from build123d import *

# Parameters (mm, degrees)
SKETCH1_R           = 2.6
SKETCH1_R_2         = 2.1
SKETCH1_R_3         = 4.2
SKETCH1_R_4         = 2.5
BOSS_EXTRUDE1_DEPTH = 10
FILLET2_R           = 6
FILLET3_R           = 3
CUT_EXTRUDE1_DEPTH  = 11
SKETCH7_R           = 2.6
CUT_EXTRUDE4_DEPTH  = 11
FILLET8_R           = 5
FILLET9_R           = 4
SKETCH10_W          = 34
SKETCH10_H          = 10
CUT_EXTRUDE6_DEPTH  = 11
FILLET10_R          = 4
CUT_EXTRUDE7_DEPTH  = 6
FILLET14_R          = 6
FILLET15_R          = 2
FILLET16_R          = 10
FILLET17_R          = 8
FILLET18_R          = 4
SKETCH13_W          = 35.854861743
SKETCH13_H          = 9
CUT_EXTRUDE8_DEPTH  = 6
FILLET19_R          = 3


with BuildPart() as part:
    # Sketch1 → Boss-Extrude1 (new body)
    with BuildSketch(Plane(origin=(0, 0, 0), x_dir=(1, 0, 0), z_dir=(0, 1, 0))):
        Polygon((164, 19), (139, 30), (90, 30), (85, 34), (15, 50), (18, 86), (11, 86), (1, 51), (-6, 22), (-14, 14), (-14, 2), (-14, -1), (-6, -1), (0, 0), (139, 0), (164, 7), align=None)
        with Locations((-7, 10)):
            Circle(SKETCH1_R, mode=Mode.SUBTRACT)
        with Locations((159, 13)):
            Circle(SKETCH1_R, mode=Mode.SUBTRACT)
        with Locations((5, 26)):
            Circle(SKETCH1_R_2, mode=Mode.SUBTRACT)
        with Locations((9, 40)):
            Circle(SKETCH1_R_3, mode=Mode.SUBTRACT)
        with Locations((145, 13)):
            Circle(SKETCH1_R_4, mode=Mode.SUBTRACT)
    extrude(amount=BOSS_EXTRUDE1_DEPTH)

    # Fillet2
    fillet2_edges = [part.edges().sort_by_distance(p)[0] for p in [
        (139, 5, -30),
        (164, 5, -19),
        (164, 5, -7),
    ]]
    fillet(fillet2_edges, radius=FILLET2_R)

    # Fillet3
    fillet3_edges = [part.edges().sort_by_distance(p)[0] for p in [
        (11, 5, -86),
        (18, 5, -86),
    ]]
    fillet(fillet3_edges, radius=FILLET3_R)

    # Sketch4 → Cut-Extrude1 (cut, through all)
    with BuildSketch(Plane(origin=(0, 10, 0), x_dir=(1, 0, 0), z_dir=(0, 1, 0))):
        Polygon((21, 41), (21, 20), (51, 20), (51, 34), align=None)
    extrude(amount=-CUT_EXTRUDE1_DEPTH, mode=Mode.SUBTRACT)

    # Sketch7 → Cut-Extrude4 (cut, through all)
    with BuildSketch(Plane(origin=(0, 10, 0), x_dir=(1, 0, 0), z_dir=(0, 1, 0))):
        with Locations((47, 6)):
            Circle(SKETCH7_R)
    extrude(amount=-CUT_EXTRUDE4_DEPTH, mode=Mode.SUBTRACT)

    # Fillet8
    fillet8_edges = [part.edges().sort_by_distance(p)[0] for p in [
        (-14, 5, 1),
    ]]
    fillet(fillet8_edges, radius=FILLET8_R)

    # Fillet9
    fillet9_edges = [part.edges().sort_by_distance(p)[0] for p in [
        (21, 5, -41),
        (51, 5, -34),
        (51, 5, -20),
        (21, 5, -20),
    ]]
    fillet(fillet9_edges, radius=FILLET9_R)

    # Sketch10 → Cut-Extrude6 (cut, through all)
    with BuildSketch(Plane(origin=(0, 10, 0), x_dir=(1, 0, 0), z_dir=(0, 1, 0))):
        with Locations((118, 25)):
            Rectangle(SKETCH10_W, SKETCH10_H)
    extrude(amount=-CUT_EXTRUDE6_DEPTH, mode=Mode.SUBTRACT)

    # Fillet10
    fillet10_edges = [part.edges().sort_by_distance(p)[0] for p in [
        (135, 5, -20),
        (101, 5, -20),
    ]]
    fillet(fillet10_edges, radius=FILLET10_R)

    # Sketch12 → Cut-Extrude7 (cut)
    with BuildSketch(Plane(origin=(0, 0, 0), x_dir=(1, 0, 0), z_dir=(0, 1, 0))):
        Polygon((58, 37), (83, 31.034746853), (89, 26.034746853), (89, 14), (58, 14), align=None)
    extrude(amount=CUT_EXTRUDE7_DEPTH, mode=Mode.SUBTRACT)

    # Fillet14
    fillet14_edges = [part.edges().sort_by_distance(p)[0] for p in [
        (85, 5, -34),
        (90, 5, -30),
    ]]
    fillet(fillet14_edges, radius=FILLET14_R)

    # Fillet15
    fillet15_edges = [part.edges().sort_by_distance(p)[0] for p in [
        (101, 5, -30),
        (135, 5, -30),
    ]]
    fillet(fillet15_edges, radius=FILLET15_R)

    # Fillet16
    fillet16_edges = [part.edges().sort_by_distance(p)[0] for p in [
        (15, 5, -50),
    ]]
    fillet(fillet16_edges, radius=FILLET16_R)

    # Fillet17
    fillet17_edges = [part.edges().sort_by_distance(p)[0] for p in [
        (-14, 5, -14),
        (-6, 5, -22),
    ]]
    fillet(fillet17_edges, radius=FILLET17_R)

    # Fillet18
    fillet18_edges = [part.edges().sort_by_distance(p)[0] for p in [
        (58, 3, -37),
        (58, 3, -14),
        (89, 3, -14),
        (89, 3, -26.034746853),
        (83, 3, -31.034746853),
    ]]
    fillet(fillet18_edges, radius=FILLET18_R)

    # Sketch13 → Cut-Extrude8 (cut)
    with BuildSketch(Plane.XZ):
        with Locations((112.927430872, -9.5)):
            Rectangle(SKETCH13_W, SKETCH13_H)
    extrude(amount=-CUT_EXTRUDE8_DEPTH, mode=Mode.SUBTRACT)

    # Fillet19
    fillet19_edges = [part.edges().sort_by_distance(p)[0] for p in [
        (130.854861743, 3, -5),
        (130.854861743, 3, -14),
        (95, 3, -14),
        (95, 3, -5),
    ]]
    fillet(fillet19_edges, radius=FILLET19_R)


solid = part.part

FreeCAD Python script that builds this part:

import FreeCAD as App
import Part
import Sketcher
from FreeCAD import Vector
Q = App.Units.Quantity


def edges_at(feature, points):
    """Names of the edges that pass closest to the given points."""
    edges = feature.Shape.Edges
    near = lambda p: min(range(len(edges)), key=lambda i: edges[i].distToShape(Part.Vertex(*p))[0])
    return sorted({f"Edge{near(p) + 1}" for p in points})


def add_polygon(sketch, points):
    """Adds a closed chain of lines whose ends are joined by coincident constraints."""
    first, n = sketch.GeometryCount, len(points)
    for a, b in zip(points, points[1:] + points[:1]):
        sketch.addGeometry(Part.LineSegment(App.Vector(*a, 0), App.Vector(*b, 0)), False)
    for i in range(n):
        sketch.addConstraint(Sketcher.Constraint("Coincident", first + i, 2, first + (i + 1) % n, 1))

doc = App.newDocument("Part")
body = doc.addObject("PartDesign::Body", "Body")

# Sketch on XZ plane
sketch1 = doc.addObject("Sketcher::SketchObject", "Sketch")
body.addObject(sketch1)
sketch1.AttachmentSupport = (doc.XZ_Plane, [""])
sketch1.MapMode = "FlatFace"
add_polygon(sketch1, [(164, -19), (139, -30), (90, -30), (85, -34), (15, -50), (18, -86), (11, -86), (1, -51), (-6, -22), (-14, -14), (-14, 1), (-6, 1), (0, 0), (139, 0), (164, -7)])  # lines 0-14
sketch1.addGeometry(Part.Circle(Vector(-7, -10, 0), Vector(0, 0, 1), 2.6), False)  # 15
sketch1.addGeometry(Part.Circle(Vector(145, -13, 0), Vector(0, 0, 1), 2.5), False)  # 16
sketch1.addGeometry(Part.Circle(Vector(159, -13, 0), Vector(0, 0, 1), 2.6), False)  # 17
sketch1.addGeometry(Part.Circle(Vector(5, -26, 0), Vector(0, 0, 1), 2.1), False)  # 18
sketch1.addGeometry(Part.Circle(Vector(9, -40, 0), Vector(0, 0, 1), 4.2), False)  # 19
sketch1.addConstraint([
    Sketcher.Constraint("Horizontal", 1),
    Sketcher.Constraint("Horizontal", 5),
    Sketcher.Constraint("Vertical", 9),
    Sketcher.Constraint("Horizontal", 10),
    Sketcher.Constraint("Horizontal", 12),
    Sketcher.Constraint("Vertical", 14),
    Sketcher.Constraint("Coincident", 11, 2, -1, 1),
    Sketcher.Constraint("Equal", 15, 17),
    Sketcher.Constraint("Horizontal", 16, 3, 17, 3),
    Sketcher.Constraint("Vertical", 7, 2, 10, 2),
    Sketcher.Constraint("Vertical", 0, 2, 12, 2),
    Sketcher.Constraint("Diameter", 16, Q("5 mm")),
    Sketcher.Constraint("Diameter", 15, Q("5.2 mm")),
    Sketcher.Constraint("Diameter", 18, Q("4.2 mm")),
    Sketcher.Constraint("Diameter", 19, Q("8.4 mm")),
    Sketcher.Constraint("DistanceX", 1, 2, 1, 1, Q("49 mm")),
    Sketcher.Constraint("DistanceX", 5, 2, 5, 1, Q("7 mm")),
    Sketcher.Constraint("DistanceX", 10, 1, 10, 2, Q("8 mm")),
    Sketcher.Constraint("DistanceX", 12, 1, 12, 2, Q("139 mm")),
    Sketcher.Constraint("DistanceY", 9, 1, 9, 2, Q("15 mm")),
    Sketcher.Constraint("DistanceY", 14, 2, 14, 1, Q("12 mm")),
    Sketcher.Constraint("Angle", 8, Q("135 deg")),
    Sketcher.Constraint("DistanceX", 15, 3, -1, 1, Q("7 mm")),
    Sketcher.Constraint("DistanceY", 15, 3, -1, 1, Q("10 mm")),
    Sketcher.Constraint("DistanceX", -1, 1, 16, 3, Q("145 mm")),
    Sketcher.Constraint("DistanceY", 16, 3, -1, 1, Q("13 mm")),
    Sketcher.Constraint("DistanceX", -1, 1, 17, 3, Q("159 mm")),
    Sketcher.Constraint("DistanceX", -1, 1, 18, 3, Q("5 mm")),
    Sketcher.Constraint("DistanceY", 18, 3, -1, 1, Q("26 mm")),
    Sketcher.Constraint("DistanceX", -1, 1, 19, 3, Q("9 mm")),
    Sketcher.Constraint("DistanceY", 19, 3, -1, 1, Q("40 mm")),
    Sketcher.Constraint("DistanceY", 0, 2, -1, 1, Q("30 mm")),
    Sketcher.Constraint("DistanceX", -1, 1, 2, 2, Q("85 mm")),
    Sketcher.Constraint("DistanceY", 2, 2, -1, 1, Q("34 mm")),
    Sketcher.Constraint("DistanceX", -1, 1, 3, 2, Q("15 mm")),
    Sketcher.Constraint("DistanceY", 3, 2, -1, 1, Q("50 mm")),
    Sketcher.Constraint("DistanceX", -1, 1, 4, 2, Q("18 mm")),
    Sketcher.Constraint("DistanceY", 4, 2, -1, 1, Q("86 mm")),
    Sketcher.Constraint("DistanceX", -1, 1, 6, 2, Q("1 mm")),
    Sketcher.Constraint("DistanceY", 6, 2, -1, 1, Q("51 mm")),
    Sketcher.Constraint("DistanceX", 7, 2, -1, 1, Q("6 mm")),
    Sketcher.Constraint("DistanceY", 7, 2, -1, 1, Q("22 mm")),
    Sketcher.Constraint("DistanceX", -1, 1, 13, 2, Q("164 mm")),
    Sketcher.Constraint("DistanceY", 13, 2, -1, 1, Q("7 mm")),
])
pad1 = doc.addObject("PartDesign::Pad", "Pad")
body.addObject(pad1)
pad1.Profile = sketch1
pad1.Length = 10
pad1.Reversed = True
doc.recompute()

fillet = doc.addObject("PartDesign::Fillet", "Fillet")
body.addObject(fillet)
fillet.Base = (pad1, edges_at(pad1, [(139, 5, -30), (164, 5, -19), (164, 5, -7)]))
fillet.Radius = 6
doc.recompute()

fillet2 = doc.addObject("PartDesign::Fillet", "Fillet001")
body.addObject(fillet2)
fillet2.Base = (fillet, edges_at(fillet, [(11, 5, -86), (18, 5, -86)]))
fillet2.Radius = 3

# Sketch on XZ plane
sketch2 = doc.addObject("Sketcher::SketchObject", "Sketch001")
body.addObject(sketch2)
sketch2.AttachmentSupport = (doc.XZ_Plane, [""])
sketch2.MapMode = "FlatFace"
sketch2.AttachmentOffset = App.Placement(Vector(0, 0, -10), App.Rotation())
add_polygon(sketch2, [(21, -41), (21, -20), (51, -20), (51, -34)])  # lines 0-3
sketch2.addConstraint([
    Sketcher.Constraint("Vertical", 0),
    Sketcher.Constraint("Horizontal", 1),
    Sketcher.Constraint("Vertical", 2),
    Sketcher.Constraint("DistanceX", 1, 1, 1, 2, Q("30 mm")),
    Sketcher.Constraint("DistanceY", 0, 1, 0, 2, Q("21 mm")),
    Sketcher.Constraint("DistanceY", 2, 2, 2, 1, Q("14 mm")),
    Sketcher.Constraint("DistanceX", -1, 1, 0, 2, Q("21 mm")),
    Sketcher.Constraint("DistanceY", 0, 2, -1, 1, Q("20 mm")),
])
pocket1 = doc.addObject("PartDesign::Pocket", "Pocket")
body.addObject(pocket1)
pocket1.Profile = sketch2
pocket1.Type = "ThroughAll"
pocket1.Reversed = True

# Sketch on XZ plane
sketch3 = doc.addObject("Sketcher::SketchObject", "Sketch002")
body.addObject(sketch3)
sketch3.AttachmentSupport = (doc.XZ_Plane, [""])
sketch3.MapMode = "FlatFace"
sketch3.AttachmentOffset = App.Placement(Vector(0, 0, -10), App.Rotation())
sketch3.addGeometry(Part.Circle(Vector(47, -6, 0), Vector(0, 0, 1), 2.6), False)
sketch3.addConstraint([
    Sketcher.Constraint("Diameter", 0, Q("5.2 mm")),
    Sketcher.Constraint("DistanceX", -1, 1, 0, 3, Q("47 mm")),
    Sketcher.Constraint("DistanceY", 0, 3, -1, 1, Q("6 mm")),
])
pocket2 = doc.addObject("PartDesign::Pocket", "Pocket001")
body.addObject(pocket2)
pocket2.Profile = sketch3
pocket2.Type = "ThroughAll"
pocket2.Reversed = True
doc.recompute()

fillet3 = doc.addObject("PartDesign::Fillet", "Fillet002")
body.addObject(fillet3)
fillet3.Base = (pocket2, edges_at(pocket2, [(-14, 5, 1)]))
fillet3.Radius = 5
doc.recompute()

fillet4 = doc.addObject("PartDesign::Fillet", "Fillet003")
body.addObject(fillet4)
fillet4.Base = (fillet3, edges_at(fillet3, [
    (21, 5, -41),
    (51, 5, -34),
    (51, 5, -20),
    (21, 5, -20),
]))
fillet4.Radius = 4

# Sketch on XZ plane
sketch4 = doc.addObject("Sketcher::SketchObject", "Sketch003")
body.addObject(sketch4)
sketch4.AttachmentSupport = (doc.XZ_Plane, [""])
sketch4.MapMode = "FlatFace"
sketch4.AttachmentOffset = App.Placement(Vector(0, 0, -10), App.Rotation())
add_polygon(sketch4, [(101, -30), (101, -20), (135, -20), (135, -30)])  # lines 0-3
sketch4.addConstraint([
    Sketcher.Constraint("Vertical", 0),
    Sketcher.Constraint("Horizontal", 1),
    Sketcher.Constraint("Vertical", 2),
    Sketcher.Constraint("Horizontal", 3),
    Sketcher.Constraint("DistanceX", 1, 1, 1, 2, Q("34 mm")),
    Sketcher.Constraint("DistanceY", 0, 1, 0, 2, Q("10 mm")),
    Sketcher.Constraint("DistanceX", -1, 1, 0, 2, Q("101 mm")),
    Sketcher.Constraint("DistanceY", 0, 2, -1, 1, Q("20 mm")),
])
pocket3 = doc.addObject("PartDesign::Pocket", "Pocket002")
body.addObject(pocket3)
pocket3.Profile = sketch4
pocket3.Type = "ThroughAll"
pocket3.Reversed = True
doc.recompute()

fillet5 = doc.addObject("PartDesign::Fillet", "Fillet004")
body.addObject(fillet5)
fillet5.Base = (pocket3, edges_at(pocket3, [(135, 5, -20), (101, 5, -20)]))
fillet5.Radius = 4

# Sketch on XZ plane
sketch5 = doc.addObject("Sketcher::SketchObject", "Sketch004")
body.addObject(sketch5)
sketch5.AttachmentSupport = (doc.XZ_Plane, [""])
sketch5.MapMode = "FlatFace"
add_polygon(sketch5, [(83, -31), (58, -37), (58, -14), (89, -14), (89, -26)])  # lines 0-4
sketch5.addConstraint([
    Sketcher.Constraint("Vertical", 1),
    Sketcher.Constraint("Horizontal", 2),
    Sketcher.Constraint("Vertical", 3),
    Sketcher.Constraint("DistanceX", 2, 1, 2, 2, Q("31 mm")),
    Sketcher.Constraint("DistanceY", 1, 1, 1, 2, Q("23 mm")),
    Sketcher.Constraint("DistanceX", -1, 1, 0, 2, Q("58 mm")),
    Sketcher.Constraint("DistanceY", 0, 2, -1, 1, Q("37 mm")),
    Sketcher.Constraint("DistanceX", -1, 1, 4, 2, Q("83 mm")),
    Sketcher.Constraint("DistanceY", 4, 2, 3, 2, Q("5 mm")),
    Sketcher.Constraint("DistanceY", 3, 2, 3, 1, Q("12.034747 mm")),
])
pocket4 = doc.addObject("PartDesign::Pocket", "Pocket003")
body.addObject(pocket4)
pocket4.Profile = sketch5
pocket4.Length = 6
doc.recompute()

fillet6 = doc.addObject("PartDesign::Fillet", "Fillet005")
body.addObject(fillet6)
fillet6.Base = (pocket4, edges_at(pocket4, [(85, 5, -34), (90, 5, -30)]))
fillet6.Radius = 6
doc.recompute()

fillet7 = doc.addObject("PartDesign::Fillet", "Fillet006")
body.addObject(fillet7)
fillet7.Base = (fillet6, edges_at(fillet6, [(101, 5, -30), (135, 5, -30)]))
fillet7.Radius = 2
doc.recompute()

fillet8 = doc.addObject("PartDesign::Fillet", "Fillet007")
body.addObject(fillet8)
fillet8.Base = (fillet7, edges_at(fillet7, [(15, 5, -50)]))
fillet8.Radius = 10
doc.recompute()

fillet9 = doc.addObject("PartDesign::Fillet", "Fillet008")
body.addObject(fillet9)
fillet9.Base = (fillet8, edges_at(fillet8, [(-14, 5, -14), (-6, 5, -22)]))
fillet9.Radius = 8
doc.recompute()

fillet10 = doc.addObject("PartDesign::Fillet", "Fillet009")
body.addObject(fillet10)
fillet10.Base = (fillet9, edges_at(fillet9, [
    (58, 3, -37),
    (58, 3, -14),
    (89, 3, -14),
    (89, 3, -26.035),
    (83, 3, -31.035),
]))
fillet10.Radius = 4

# Sketch on XZ plane
sketch6 = doc.addObject("Sketcher::SketchObject", "Sketch005")
body.addObject(sketch6)
sketch6.AttachmentSupport = (doc.XZ_Plane, [""])
sketch6.MapMode = "FlatFace"
add_polygon(sketch6, [(95, -5), (95, -14), (131, -14), (131, -5)])  # lines 0-3
sketch6.addConstraint([
    Sketcher.Constraint("Vertical", 0),
    Sketcher.Constraint("Horizontal", 1),
    Sketcher.Constraint("Vertical", 2),
    Sketcher.Constraint("Horizontal", 3),
    Sketcher.Constraint("DistanceY", 0, 2, 0, 1, Q("9 mm")),
    Sketcher.Constraint("DistanceX", -1, 1, 0, 2, Q("95 mm")),
    Sketcher.Constraint("DistanceY", 0, 2, -1, 1, Q("14 mm")),
    Sketcher.Constraint("DistanceX", 1, 1, 1, 2, Q("35.854862 mm")),
])
pocket5 = doc.addObject("PartDesign::Pocket", "Pocket004")
body.addObject(pocket5)
pocket5.Profile = sketch6
pocket5.Length = 6
doc.recompute()

fillet11 = doc.addObject("PartDesign::Fillet", "Fillet010")
body.addObject(fillet11)
fillet11.Base = (pocket5, edges_at(pocket5, [
    (130.855, 3, -5),
    (130.855, 3, -14),
    (95, 3, -14),
    (95, 3, -5),
]))
fillet11.Radius = 3

doc.recompute()
